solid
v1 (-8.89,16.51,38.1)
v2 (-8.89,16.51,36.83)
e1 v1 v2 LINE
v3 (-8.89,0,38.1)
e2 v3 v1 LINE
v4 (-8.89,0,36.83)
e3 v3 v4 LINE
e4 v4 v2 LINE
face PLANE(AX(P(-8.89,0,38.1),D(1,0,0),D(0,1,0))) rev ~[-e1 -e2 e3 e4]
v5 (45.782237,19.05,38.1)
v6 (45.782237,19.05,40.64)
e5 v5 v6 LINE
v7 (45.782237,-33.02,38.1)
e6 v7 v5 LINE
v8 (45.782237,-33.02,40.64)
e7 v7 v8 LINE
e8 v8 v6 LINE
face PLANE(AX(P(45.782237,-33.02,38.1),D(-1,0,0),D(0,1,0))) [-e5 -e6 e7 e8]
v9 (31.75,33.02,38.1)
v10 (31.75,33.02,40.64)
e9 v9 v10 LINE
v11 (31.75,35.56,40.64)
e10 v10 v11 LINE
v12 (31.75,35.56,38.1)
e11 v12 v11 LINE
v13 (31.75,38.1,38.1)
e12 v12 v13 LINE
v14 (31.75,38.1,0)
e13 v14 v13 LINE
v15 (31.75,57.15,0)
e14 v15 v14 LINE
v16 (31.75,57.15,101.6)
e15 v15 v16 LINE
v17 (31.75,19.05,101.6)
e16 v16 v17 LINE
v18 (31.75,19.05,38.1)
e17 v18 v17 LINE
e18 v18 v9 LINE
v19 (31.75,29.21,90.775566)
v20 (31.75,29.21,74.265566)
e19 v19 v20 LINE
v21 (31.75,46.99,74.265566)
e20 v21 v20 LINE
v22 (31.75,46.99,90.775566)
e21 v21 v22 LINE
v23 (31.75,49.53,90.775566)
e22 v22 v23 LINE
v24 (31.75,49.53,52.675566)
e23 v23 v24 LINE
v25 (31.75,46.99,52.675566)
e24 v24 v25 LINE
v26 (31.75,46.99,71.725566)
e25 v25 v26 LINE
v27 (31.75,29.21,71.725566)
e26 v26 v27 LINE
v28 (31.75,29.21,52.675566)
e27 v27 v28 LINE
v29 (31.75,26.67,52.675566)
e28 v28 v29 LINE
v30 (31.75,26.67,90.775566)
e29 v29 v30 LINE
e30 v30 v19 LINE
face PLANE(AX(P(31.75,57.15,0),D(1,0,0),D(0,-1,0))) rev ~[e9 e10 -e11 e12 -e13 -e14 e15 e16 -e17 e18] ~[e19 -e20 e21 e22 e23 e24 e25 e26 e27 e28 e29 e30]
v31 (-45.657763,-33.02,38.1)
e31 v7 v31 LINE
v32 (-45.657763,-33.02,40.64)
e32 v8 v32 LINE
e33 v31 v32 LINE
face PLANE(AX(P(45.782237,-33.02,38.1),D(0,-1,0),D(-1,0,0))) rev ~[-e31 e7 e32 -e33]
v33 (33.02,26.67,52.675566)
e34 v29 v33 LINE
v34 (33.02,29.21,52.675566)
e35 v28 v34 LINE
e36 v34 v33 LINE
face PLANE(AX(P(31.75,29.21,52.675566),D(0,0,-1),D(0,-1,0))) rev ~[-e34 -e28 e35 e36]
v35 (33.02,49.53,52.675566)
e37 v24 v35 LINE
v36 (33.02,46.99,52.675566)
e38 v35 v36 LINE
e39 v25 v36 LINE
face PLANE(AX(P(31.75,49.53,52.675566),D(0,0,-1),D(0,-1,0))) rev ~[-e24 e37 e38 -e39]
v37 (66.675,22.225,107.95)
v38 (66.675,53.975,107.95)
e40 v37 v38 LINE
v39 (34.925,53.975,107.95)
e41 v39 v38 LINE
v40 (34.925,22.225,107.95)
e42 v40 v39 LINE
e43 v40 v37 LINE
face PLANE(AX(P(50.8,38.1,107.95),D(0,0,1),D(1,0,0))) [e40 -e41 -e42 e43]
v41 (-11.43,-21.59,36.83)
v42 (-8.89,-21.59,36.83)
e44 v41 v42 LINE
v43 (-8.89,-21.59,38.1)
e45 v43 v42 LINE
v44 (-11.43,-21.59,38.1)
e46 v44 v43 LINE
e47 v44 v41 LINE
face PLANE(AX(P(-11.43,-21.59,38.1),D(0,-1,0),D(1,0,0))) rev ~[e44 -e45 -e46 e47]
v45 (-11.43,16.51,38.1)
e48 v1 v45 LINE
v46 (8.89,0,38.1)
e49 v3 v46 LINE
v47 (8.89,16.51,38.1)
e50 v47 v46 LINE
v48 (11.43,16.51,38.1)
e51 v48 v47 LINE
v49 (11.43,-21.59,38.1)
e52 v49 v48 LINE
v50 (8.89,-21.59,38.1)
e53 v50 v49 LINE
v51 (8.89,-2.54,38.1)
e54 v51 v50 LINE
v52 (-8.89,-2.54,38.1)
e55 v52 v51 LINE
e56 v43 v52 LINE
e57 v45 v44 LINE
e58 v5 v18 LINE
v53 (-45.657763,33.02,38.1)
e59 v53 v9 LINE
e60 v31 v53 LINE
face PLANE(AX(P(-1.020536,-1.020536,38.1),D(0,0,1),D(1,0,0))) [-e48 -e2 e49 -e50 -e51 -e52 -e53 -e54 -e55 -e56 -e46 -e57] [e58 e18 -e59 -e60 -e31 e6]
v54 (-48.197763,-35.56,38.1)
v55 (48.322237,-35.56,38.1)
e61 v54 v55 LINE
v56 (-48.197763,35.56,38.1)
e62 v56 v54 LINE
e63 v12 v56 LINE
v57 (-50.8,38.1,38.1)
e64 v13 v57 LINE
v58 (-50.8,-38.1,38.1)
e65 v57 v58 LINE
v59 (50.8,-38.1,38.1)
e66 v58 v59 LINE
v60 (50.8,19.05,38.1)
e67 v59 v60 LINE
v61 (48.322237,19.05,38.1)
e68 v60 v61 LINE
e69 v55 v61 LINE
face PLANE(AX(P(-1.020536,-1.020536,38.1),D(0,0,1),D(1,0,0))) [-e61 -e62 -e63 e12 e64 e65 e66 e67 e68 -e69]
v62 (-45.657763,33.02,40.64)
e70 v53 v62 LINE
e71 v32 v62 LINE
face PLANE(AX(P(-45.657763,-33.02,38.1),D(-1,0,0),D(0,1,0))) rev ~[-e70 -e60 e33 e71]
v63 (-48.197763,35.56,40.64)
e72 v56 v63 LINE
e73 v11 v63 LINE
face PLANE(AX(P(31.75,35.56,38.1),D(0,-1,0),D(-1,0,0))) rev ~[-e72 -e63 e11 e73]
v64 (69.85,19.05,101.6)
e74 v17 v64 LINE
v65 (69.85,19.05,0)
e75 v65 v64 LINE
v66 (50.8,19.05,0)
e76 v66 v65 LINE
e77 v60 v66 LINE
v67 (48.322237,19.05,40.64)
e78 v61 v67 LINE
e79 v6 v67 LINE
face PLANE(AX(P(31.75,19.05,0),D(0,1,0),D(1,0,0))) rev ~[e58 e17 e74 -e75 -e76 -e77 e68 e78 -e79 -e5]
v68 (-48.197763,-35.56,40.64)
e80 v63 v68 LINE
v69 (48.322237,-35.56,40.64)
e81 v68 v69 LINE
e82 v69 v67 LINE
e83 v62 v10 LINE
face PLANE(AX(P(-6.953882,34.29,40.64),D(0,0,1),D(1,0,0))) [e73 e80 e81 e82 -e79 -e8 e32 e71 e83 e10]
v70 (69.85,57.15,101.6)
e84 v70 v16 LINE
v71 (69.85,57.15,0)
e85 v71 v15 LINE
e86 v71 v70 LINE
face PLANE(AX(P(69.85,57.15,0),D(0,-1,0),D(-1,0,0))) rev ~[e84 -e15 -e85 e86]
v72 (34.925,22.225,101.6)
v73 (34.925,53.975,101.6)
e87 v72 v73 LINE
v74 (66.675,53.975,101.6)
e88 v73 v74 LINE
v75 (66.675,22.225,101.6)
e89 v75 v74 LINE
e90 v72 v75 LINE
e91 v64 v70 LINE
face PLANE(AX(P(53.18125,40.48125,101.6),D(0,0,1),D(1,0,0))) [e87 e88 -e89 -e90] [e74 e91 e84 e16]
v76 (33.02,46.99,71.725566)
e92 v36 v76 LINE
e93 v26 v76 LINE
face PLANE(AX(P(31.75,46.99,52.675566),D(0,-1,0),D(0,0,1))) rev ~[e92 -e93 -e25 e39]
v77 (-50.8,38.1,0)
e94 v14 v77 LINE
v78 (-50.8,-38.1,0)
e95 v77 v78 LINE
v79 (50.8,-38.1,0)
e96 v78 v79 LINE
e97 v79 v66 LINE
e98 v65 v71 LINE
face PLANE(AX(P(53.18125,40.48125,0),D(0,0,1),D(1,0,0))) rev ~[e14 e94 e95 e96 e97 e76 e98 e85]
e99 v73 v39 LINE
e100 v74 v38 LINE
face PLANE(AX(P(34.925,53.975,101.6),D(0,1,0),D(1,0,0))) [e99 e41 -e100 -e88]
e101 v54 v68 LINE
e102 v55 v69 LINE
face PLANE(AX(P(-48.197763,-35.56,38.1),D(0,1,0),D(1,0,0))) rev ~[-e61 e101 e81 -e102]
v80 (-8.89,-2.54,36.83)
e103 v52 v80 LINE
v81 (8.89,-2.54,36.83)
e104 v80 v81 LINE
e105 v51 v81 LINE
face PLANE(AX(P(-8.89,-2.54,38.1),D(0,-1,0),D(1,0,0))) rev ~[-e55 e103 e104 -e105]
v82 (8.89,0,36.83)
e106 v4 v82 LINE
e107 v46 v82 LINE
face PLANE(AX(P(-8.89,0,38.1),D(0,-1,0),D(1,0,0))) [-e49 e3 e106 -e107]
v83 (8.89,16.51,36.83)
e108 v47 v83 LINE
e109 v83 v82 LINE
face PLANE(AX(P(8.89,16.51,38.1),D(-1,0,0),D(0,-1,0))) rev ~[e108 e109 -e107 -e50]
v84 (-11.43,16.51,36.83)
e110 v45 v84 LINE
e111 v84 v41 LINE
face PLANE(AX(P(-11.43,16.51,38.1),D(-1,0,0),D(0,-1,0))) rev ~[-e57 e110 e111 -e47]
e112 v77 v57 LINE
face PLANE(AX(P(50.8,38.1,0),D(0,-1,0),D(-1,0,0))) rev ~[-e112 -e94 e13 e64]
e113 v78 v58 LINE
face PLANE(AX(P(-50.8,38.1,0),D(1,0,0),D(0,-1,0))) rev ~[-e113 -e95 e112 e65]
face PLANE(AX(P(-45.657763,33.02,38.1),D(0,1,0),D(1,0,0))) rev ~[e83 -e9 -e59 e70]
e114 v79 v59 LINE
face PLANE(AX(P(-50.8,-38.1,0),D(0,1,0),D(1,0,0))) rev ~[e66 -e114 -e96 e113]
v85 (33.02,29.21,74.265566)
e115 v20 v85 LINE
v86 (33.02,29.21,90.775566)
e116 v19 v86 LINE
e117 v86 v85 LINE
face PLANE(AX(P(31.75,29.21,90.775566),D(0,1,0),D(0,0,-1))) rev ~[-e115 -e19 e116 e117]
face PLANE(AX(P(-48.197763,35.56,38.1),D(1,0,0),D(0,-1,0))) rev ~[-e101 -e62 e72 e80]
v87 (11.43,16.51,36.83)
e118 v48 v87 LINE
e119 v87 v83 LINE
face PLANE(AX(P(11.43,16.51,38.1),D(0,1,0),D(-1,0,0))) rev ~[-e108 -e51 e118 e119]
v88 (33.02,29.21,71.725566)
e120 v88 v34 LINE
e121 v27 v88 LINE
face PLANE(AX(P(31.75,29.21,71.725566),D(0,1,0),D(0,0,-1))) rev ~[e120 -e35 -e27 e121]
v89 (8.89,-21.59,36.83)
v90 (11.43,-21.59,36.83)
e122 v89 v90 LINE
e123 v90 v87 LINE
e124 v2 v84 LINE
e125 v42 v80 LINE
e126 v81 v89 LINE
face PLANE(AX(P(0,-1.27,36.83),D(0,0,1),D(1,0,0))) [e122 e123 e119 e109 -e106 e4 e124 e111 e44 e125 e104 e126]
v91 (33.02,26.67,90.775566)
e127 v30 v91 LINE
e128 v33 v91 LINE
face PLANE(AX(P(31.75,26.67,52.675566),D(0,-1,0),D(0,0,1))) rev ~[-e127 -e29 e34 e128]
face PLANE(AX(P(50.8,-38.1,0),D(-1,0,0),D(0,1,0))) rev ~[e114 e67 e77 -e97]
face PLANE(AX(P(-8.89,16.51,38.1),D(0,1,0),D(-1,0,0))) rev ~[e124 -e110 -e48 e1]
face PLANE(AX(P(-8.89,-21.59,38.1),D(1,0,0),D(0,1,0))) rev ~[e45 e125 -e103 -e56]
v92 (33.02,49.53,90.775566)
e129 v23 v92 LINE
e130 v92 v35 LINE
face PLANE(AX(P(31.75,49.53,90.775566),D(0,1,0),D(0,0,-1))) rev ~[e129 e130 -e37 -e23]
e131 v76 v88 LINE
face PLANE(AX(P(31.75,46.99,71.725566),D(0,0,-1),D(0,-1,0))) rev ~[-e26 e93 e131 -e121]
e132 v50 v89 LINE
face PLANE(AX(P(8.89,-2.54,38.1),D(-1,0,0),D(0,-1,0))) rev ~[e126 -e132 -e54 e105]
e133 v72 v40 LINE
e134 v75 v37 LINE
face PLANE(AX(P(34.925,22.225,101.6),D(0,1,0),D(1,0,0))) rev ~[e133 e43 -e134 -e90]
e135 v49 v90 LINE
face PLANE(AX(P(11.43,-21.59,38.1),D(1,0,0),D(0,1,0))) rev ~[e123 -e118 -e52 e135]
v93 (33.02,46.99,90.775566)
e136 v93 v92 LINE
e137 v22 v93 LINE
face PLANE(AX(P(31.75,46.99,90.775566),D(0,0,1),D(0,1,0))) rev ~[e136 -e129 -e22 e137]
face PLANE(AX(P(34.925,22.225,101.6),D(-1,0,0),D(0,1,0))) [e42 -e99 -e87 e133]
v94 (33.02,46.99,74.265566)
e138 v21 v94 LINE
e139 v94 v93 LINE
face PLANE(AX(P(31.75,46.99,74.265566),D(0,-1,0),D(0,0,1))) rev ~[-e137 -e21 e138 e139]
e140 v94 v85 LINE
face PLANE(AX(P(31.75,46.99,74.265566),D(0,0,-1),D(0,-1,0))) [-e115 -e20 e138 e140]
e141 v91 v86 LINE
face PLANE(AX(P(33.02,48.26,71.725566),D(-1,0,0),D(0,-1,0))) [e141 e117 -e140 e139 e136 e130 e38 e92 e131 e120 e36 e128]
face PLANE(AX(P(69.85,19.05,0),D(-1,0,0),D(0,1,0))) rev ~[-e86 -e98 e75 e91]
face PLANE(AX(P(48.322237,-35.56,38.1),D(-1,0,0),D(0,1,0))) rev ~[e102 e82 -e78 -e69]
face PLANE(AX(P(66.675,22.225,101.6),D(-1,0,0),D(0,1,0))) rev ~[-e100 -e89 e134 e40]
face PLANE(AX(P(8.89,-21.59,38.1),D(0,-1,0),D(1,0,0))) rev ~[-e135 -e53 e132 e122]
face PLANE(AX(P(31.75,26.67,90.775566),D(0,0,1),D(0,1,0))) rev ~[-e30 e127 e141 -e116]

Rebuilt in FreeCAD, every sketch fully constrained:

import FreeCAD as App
import Part
import Sketcher
from FreeCAD import Vector
Q = App.Units.Quantity

doc = App.newDocument("Part")
body = doc.addObject("PartDesign::Body", "Body")

# Sketch on XY plane
sketch1 = body.newObject("Sketcher::SketchObject", "Sketch")
sketch1.AttachmentSupport = (doc.getObject("XY_Plane"), [""])
sketch1.MapMode = "FlatFace"
sketch1.addGeometry([
    Part.LineSegment(Vector(-51, 38, 0), Vector(-51, -38, 0)),
    Part.LineSegment(Vector(-51, -38, 0), Vector(51, -38, 0)),
    Part.LineSegment(Vector(51, -38, 0), Vector(51, 38, 0)),
    Part.LineSegment(Vector(51, 38, 0), Vector(-51, 38, 0)),
], False)
sketch1.addConstraint([
    Sketcher.Constraint("Coincident", 0, 2, 1, 1),
    Sketcher.Constraint("Coincident", 1, 2, 2, 1),
    Sketcher.Constraint("Coincident", 2, 2, 3, 1),
    Sketcher.Constraint("Coincident", 3, 2, 0, 1),
    Sketcher.Constraint("Vertical", 0),
    Sketcher.Constraint("Horizontal", 1),
    Sketcher.Constraint("Vertical", 2),
    Sketcher.Constraint("Horizontal", 3),
    Sketcher.Constraint("Symmetric", 0, 2, 2, 2, -1, 1),
    Sketcher.Constraint("DistanceX", 1, 1, 1, 2, Q("4 in")),
    Sketcher.Constraint("DistanceY", 0, 2, 0, 1, Q("3 in")),
])
pad1 = body.newObject("PartDesign::Pad", "Pad")
pad1.Profile = sketch1
pad1.Length = Q("1.5 in")

# Sketch on XY plane
sketch2 = body.newObject("Sketcher::SketchObject", "Sketch001")
sketch2.AttachmentSupport = (doc.getObject("XY_Plane"), [""])
sketch2.MapMode = "FlatFace"
sketch2.addGeometry([
    Part.LineSegment(Vector(32, 57, 0), Vector(32, 19, 0)),
    Part.LineSegment(Vector(32, 19, 0), Vector(70, 19, 0)),
    Part.LineSegment(Vector(70, 19, 0), Vector(70, 57, 0)),
    Part.LineSegment(Vector(70, 57, 0), Vector(32, 57, 0)),
], False)
sketch2.addConstraint([
    Sketcher.Constraint("Coincident", 0, 2, 1, 1),
    Sketcher.Constraint("Coincident", 1, 2, 2, 1),
    Sketcher.Constraint("Coincident", 2, 2, 3, 1),
    Sketcher.Constraint("Coincident", 3, 2, 0, 1),
    Sketcher.Constraint("Vertical", 0),
    Sketcher.Constraint("Horizontal", 1),
    Sketcher.Constraint("Vertical", 2),
    Sketcher.Constraint("Horizontal", 3),
    Sketcher.Constraint("Equal", 3, 0),
    Sketcher.Constraint("DistanceX", 1, 1, 1, 2, Q("1.5 in")),
    Sketcher.Constraint("DistanceX", -1, 1, 0, 2, Q("1.25 in")),
    Sketcher.Constraint("DistanceY", -1, 1, 0, 2, Q("0.75 in")),
])
pad2 = body.newObject("PartDesign::Pad", "Pad001")
pad2.Profile = sketch2
pad2.Length = Q("4 in")

# Sketch on XY plane
sketch3 = body.newObject("Sketcher::SketchObject", "Sketch002")
sketch3.AttachmentSupport = (doc.getObject("XY_Plane"), [""])
sketch3.MapMode = "FlatFace"
sketch3.AttachmentOffset = App.Placement(Vector(0, 0, 4 * 25.4), App.Rotation())
sketch3.addGeometry([
    Part.LineSegment(Vector(35, 54, 0), Vector(35, 22, 0)),
    Part.LineSegment(Vector(35, 22, 0), Vector(67, 22, 0)),
    Part.LineSegment(Vector(67, 22, 0), Vector(67, 54, 0)),
    Part.LineSegment(Vector(67, 54, 0), Vector(35, 54, 0)),
], False)
sketch3.addConstraint([
    Sketcher.Constraint("Coincident", 0, 2, 1, 1),
    Sketcher.Constraint("Coincident", 1, 2, 2, 1),
    Sketcher.Constraint("Coincident", 2, 2, 3, 1),
    Sketcher.Constraint("Coincident", 3, 2, 0, 1),
    Sketcher.Constraint("Vertical", 0),
    Sketcher.Constraint("Horizontal", 1),
    Sketcher.Constraint("Vertical", 2),
    Sketcher.Constraint("Horizontal", 3),
    Sketcher.Constraint("Equal", 3, 0),
    Sketcher.Constraint("DistanceX", 1, 1, 1, 2, Q("1.25 in")),
    Sketcher.Constraint("DistanceX", -1, 1, 0, 2, Q("1.375 in")),
    Sketcher.Constraint("DistanceY", -1, 1, 0, 2, Q("0.875 in")),
])
pad3 = body.newObject("PartDesign::Pad", "Pad002")
pad3.Profile = sketch3
pad3.Length = Q("0.25 in")

# Sketch on XY plane
sketch4 = body.newObject("Sketcher::SketchObject", "Sketch003")
sketch4.AttachmentSupport = (doc.getObject("XY_Plane"), [""])
sketch4.MapMode = "FlatFace"
sketch4.AttachmentOffset = App.Placement(Vector(0, 0, 1.5 * 25.4), App.Rotation())
sketch4.addGeometry([
    Part.LineSegment(Vector(-8.9, -2.5, 0), Vector(8.9, -2.5, 0)),  # 0
    Part.LineSegment(Vector(8.9, -2.5, 0), Vector(8.9, -21.6, 0)),  # 1
    Part.LineSegment(Vector(8.9, -21.6, 0), Vector(11.4, -21.6, 0)),  # 2
    Part.LineSegment(Vector(11.4, -21.6, 0), Vector(11.4, 16.5, 0)),  # 3
    Part.LineSegment(Vector(11.4, 16.5, 0), Vector(8.9, 16.5, 0)),  # 4
    Part.LineSegment(Vector(8.9, 16.5, 0), Vector(8.9, 0, 0)),  # 5
    Part.LineSegment(Vector(8.9, 0, 0), Vector(-8.9, 0, 0)),  # 6
    Part.LineSegment(Vector(-8.9, 0, 0), Vector(-8.9, 16.5, 0)),  # 7
    Part.LineSegment(Vector(-8.9, 16.5, 0), Vector(-11.4, 16.5, 0)),  # 8
    Part.LineSegment(Vector(-11.4, 16.5, 0), Vector(-11.4, -21.6, 0)),  # 9
    Part.LineSegment(Vector(-11.4, -21.6, 0), Vector(-8.9, -21.6, 0)),  # 10
    Part.LineSegment(Vector(-8.9, -21.6, 0), Vector(-8.9, -2.5, 0)),  # 11
], False)
sketch4.addConstraint([
    Sketcher.Constraint("Coincident", 0, 2, 1, 1),
    Sketcher.Constraint("Coincident", 1, 2, 2, 1),
    Sketcher.Constraint("Coincident", 2, 2, 3, 1),
    Sketcher.Constraint("Coincident", 3, 2, 4, 1),
    Sketcher.Constraint("Coincident", 4, 2, 5, 1),
    Sketcher.Constraint("Coincident", 5, 2, 6, 1),
    Sketcher.Constraint("Coincident", 6, 2, 7, 1),
    Sketcher.Constraint("Coincident", 7, 2, 8, 1),
    Sketcher.Constraint("Coincident", 8, 2, 9, 1),
    Sketcher.Constraint("Coincident", 9, 2, 10, 1),
    Sketcher.Constraint("Coincident", 10, 2, 11, 1),
    Sketcher.Constraint("Coincident", 11, 2, 0, 1),
    Sketcher.Constraint("Horizontal", 0),
    Sketcher.Constraint("Vertical", 1),
    Sketcher.Constraint("Horizontal", 2),
    Sketcher.Constraint("Vertical", 3),
    Sketcher.Constraint("Horizontal", 4),
    Sketcher.Constraint("Vertical", 5),
    Sketcher.Constraint("Horizontal", 6),
    Sketcher.Constraint("Vertical", 7),
    Sketcher.Constraint("Horizontal", 8),
    Sketcher.Constraint("Vertical", 9),
    Sketcher.Constraint("Horizontal", 10),
    Sketcher.Constraint("Vertical", 11),
    Sketcher.Constraint("Symmetric", 5, 2, 6, 2, -1, 1),
    Sketcher.Constraint("Symmetric", 3, 2, 8, 2, -2),
    Sketcher.Constraint("Symmetric", 1, 2, 10, 2, -2),
    Sketcher.Constraint("Vertical", 1, 2, 4, 2),
    Sketcher.Constraint("DistanceX", 0, 1, 0, 2, Q("0.7 in")),
    Sketcher.Constraint("DistanceX", 2, 1, 2, 2, Q("0.1 in")),
    Sketcher.Constraint("DistanceY", 3, 1, 3, 2, Q("1.5 in")),
    Sketcher.Constraint("DistanceY", 1, 2, 1, 1, Q("0.75 in")),
    Sketcher.Constraint("DistanceY", 5, 2, 5, 1, Q("0.65 in")),
])
pocket1 = body.newObject("PartDesign::Pocket", "Pocket")
pocket1.Profile = sketch4
pocket1.Length = Q("0.05 in")

# Sketch on XY plane
sketch5 = body.newObject("Sketcher::SketchObject", "Sketch004")
sketch5.AttachmentSupport = (doc.getObject("XY_Plane"), [""])
sketch5.MapMode = "FlatFace"
sketch5.AttachmentOffset = App.Placement(Vector(0, 0, 1.5 * 25.4), App.Rotation())
sketch5.addGeometry([
    Part.LineSegment(Vector(-45.7, 33, 0), Vector(31.8, 33, 0)),  # 0
    Part.LineSegment(Vector(31.8, 33, 0), Vector(31.8, 35.6, 0)),  # 1
    Part.LineSegment(Vector(31.8, 35.6, 0), Vector(-48.2, 35.6, 0)),  # 2
    Part.LineSegment(Vector(-48.2, 35.6, 0), Vector(-48.2, -35.6, 0)),  # 3
    Part.LineSegment(Vector(-48.2, -35.6, 0), Vector(48.3, -35.6, 0)),  # 4
    Part.LineSegment(Vector(48.3, -35.6, 0), Vector(48.3, 19.1, 0)),  # 5
    Part.LineSegment(Vector(48.3, 19.1, 0), Vector(45.8, 19.1, 0)),  # 6
    Part.LineSegment(Vector(45.8, 19.1, 0), Vector(45.8, -33, 0)),  # 7
    Part.LineSegment(Vector(45.8, -33, 0), Vector(-45.7, -33, 0)),  # 8
    Part.LineSegment(Vector(-45.7, -33, 0), Vector(-45.7, 33, 0)),  # 9
], False)
sketch5.addConstraint([
    Sketcher.Constraint("Coincident", 0, 2, 1, 1),
    Sketcher.Constraint("Coincident", 1, 2, 2, 1),
    Sketcher.Constraint("Coincident", 2, 2, 3, 1),
    Sketcher.Constraint("Coincident", 3, 2, 4, 1),
    Sketcher.Constraint("Coincident", 4, 2, 5, 1),
    Sketcher.Constraint("Coincident", 5, 2, 6, 1),
    Sketcher.Constraint("Coincident", 6, 2, 7, 1),
    Sketcher.Constraint("Coincident", 7, 2, 8, 1),
    Sketcher.Constraint("Coincident", 8, 2, 9, 1),
    Sketcher.Constraint("Coincident", 9, 2, 0, 1),
    Sketcher.Constraint("Horizontal", 0),
    Sketcher.Constraint("Vertical", 1),
    Sketcher.Constraint("Horizontal", 2),
    Sketcher.Constraint("Vertical", 3),
    Sketcher.Constraint("Horizontal", 4),
    Sketcher.Constraint("Vertical", 5),
    Sketcher.Constraint("Horizontal", 6),
    Sketcher.Constraint("Vertical", 7),
    Sketcher.Constraint("Horizontal", 8),
    Sketcher.Constraint("Vertical", 9),
    Sketcher.Constraint("Equal", 6, 1),
    Sketcher.Constraint("DistanceX", 4, 1, 4, 2, Q("3.8 in")),
    Sketcher.Constraint("DistanceX", 6, 2, 6, 1, Q("0.1 in")),
    Sketcher.Constraint("DistanceX", 8, 2, 8, 1, Q("3.6 in")),
    Sketcher.Constraint("DistanceY", 3, 2, 3, 1, Q("2.8 in")),
    Sketcher.Constraint("DistanceY", 9, 1, 9, 2, Q("2.6 in")),
    Sketcher.Constraint("DistanceY", 5, 1, 5, 2, Q("2.15 in")),
    Sketcher.Constraint("DistanceY", -1, 1, 0, 2, Q("1.3 in")),
    Sketcher.Constraint("DistanceX", -1, 1, 0, 2, Q("1.25 in")),
    Sketcher.Constraint("DistanceX", 0, 1, 0, 2, 77.407763),
])
pad4 = body.newObject("PartDesign::Pad", "Pad003")
pad4.Profile = sketch5
pad4.Length = Q("0.1 in")

# Sketch on YZ plane
sketch6 = body.newObject("Sketcher::SketchObject", "Sketch005")
sketch6.AttachmentSupport = (doc.getObject("YZ_Plane"), [""])
sketch6.MapMode = "FlatFace"
sketch6.AttachmentOffset = App.Placement(Vector(0, 0, 1.25 * 25.4), App.Rotation())
sketch6.addGeometry([
    Part.LineSegment(Vector(47, 90.8, 0), Vector(49.5, 90.8, 0)),  # 0
    Part.LineSegment(Vector(49.5, 90.8, 0), Vector(49.5, 52.7, 0)),  # 1
    Part.LineSegment(Vector(49.5, 52.7, 0), Vector(47, 52.7, 0)),  # 2
    Part.LineSegment(Vector(47, 52.7, 0), Vector(47, 71.7, 0)),  # 3
    Part.LineSegment(Vector(47, 71.7, 0), Vector(29.2, 71.7, 0)),  # 4
    Part.LineSegment(Vector(29.2, 71.7, 0), Vector(29.2, 52.7, 0)),  # 5
    Part.LineSegment(Vector(29.2, 52.7, 0), Vector(26.7, 52.7, 0)),  # 6
    Part.LineSegment(Vector(26.7, 52.7, 0), Vector(26.7, 90.8, 0)),  # 7
    Part.LineSegment(Vector(26.7, 90.8, 0), Vector(29.2, 90.8, 0)),  # 8
    Part.LineSegment(Vector(29.2, 90.8, 0), Vector(29.2, 74.3, 0)),  # 9
    Part.LineSegment(Vector(29.2, 74.3, 0), Vector(47, 74.3, 0)),  # 10
    Part.LineSegment(Vector(47, 74.3, 0), Vector(47, 90.8, 0)),  # 11
], False)
sketch6.addConstraint([
    Sketcher.Constraint("Coincident", 0, 2, 1, 1),
    Sketcher.Constraint("Coincident", 1, 2, 2, 1),
    Sketcher.Constraint("Coincident", 2, 2, 3, 1),
    Sketcher.Constraint("Coincident", 3, 2, 4, 1),
    Sketcher.Constraint("Coincident", 4, 2, 5, 1),
    Sketcher.Constraint("Coincident", 5, 2, 6, 1),
    Sketcher.Constraint("Coincident", 6, 2, 7, 1),
    Sketcher.Constraint("Coincident", 7, 2, 8, 1),
    Sketcher.Constraint("Coincident", 8, 2, 9, 1),
    Sketcher.Constraint("Coincident", 9, 2, 10, 1),
    Sketcher.Constraint("Coincident", 10, 2, 11, 1),
    Sketcher.Constraint("Coincident", 11, 2, 0, 1),
    Sketcher.Constraint("Horizontal", 0),
    Sketcher.Constraint("Vertical", 1),
    Sketcher.Constraint("Horizontal", 2),
    Sketcher.Constraint("Vertical", 3),
    Sketcher.Constraint("Horizontal", 4),
    Sketcher.Constraint("Vertical", 5),
    Sketcher.Constraint("Horizontal", 6),
    Sketcher.Constraint("Vertical", 7),
    Sketcher.Constraint("Horizontal", 8),
    Sketcher.Constraint("Vertical", 9),
    Sketcher.Constraint("Horizontal", 10),
    Sketcher.Constraint("Vertical", 11),
    Sketcher.Constraint("Horizontal", 2, 2, 5, 2),
    Sketcher.Constraint("Horizontal", 0, 2, 7, 2),
    Sketcher.Constraint("Vertical", 5, 2, 8, 2),
    Sketcher.Constraint("Vertical", 3, 2, 10, 2),
    Sketcher.Constraint("Equal", 2, 6),
    Sketcher.Constraint("DistanceX", 0, 1, 0, 2, Q("0.1 in")),
    Sketcher.Constraint("DistanceX", 4, 2, 4, 1, Q("0.7 in")),
    Sketcher.Constraint("DistanceY", 1, 2, 1, 1, Q("1.5 in")),
    Sketcher.Constraint("DistanceY", 3, 1, 3, 2, Q("0.75 in")),
    Sketcher.Constraint("DistanceY", 9, 2, 9, 1, Q("0.65 in")),
    Sketcher.Constraint("DistanceX", -1, 1, 0, 2, Q("1.95 in")),
    Sketcher.Constraint("DistanceY", -1, 1, 0, 2, 90.775566),
])
pocket2 = body.newObject("PartDesign::Pocket", "Pocket001")
pocket2.Profile = sketch6
pocket2.Length = Q("0.05 in")
pocket2.Reversed = True

doc.recompute()
